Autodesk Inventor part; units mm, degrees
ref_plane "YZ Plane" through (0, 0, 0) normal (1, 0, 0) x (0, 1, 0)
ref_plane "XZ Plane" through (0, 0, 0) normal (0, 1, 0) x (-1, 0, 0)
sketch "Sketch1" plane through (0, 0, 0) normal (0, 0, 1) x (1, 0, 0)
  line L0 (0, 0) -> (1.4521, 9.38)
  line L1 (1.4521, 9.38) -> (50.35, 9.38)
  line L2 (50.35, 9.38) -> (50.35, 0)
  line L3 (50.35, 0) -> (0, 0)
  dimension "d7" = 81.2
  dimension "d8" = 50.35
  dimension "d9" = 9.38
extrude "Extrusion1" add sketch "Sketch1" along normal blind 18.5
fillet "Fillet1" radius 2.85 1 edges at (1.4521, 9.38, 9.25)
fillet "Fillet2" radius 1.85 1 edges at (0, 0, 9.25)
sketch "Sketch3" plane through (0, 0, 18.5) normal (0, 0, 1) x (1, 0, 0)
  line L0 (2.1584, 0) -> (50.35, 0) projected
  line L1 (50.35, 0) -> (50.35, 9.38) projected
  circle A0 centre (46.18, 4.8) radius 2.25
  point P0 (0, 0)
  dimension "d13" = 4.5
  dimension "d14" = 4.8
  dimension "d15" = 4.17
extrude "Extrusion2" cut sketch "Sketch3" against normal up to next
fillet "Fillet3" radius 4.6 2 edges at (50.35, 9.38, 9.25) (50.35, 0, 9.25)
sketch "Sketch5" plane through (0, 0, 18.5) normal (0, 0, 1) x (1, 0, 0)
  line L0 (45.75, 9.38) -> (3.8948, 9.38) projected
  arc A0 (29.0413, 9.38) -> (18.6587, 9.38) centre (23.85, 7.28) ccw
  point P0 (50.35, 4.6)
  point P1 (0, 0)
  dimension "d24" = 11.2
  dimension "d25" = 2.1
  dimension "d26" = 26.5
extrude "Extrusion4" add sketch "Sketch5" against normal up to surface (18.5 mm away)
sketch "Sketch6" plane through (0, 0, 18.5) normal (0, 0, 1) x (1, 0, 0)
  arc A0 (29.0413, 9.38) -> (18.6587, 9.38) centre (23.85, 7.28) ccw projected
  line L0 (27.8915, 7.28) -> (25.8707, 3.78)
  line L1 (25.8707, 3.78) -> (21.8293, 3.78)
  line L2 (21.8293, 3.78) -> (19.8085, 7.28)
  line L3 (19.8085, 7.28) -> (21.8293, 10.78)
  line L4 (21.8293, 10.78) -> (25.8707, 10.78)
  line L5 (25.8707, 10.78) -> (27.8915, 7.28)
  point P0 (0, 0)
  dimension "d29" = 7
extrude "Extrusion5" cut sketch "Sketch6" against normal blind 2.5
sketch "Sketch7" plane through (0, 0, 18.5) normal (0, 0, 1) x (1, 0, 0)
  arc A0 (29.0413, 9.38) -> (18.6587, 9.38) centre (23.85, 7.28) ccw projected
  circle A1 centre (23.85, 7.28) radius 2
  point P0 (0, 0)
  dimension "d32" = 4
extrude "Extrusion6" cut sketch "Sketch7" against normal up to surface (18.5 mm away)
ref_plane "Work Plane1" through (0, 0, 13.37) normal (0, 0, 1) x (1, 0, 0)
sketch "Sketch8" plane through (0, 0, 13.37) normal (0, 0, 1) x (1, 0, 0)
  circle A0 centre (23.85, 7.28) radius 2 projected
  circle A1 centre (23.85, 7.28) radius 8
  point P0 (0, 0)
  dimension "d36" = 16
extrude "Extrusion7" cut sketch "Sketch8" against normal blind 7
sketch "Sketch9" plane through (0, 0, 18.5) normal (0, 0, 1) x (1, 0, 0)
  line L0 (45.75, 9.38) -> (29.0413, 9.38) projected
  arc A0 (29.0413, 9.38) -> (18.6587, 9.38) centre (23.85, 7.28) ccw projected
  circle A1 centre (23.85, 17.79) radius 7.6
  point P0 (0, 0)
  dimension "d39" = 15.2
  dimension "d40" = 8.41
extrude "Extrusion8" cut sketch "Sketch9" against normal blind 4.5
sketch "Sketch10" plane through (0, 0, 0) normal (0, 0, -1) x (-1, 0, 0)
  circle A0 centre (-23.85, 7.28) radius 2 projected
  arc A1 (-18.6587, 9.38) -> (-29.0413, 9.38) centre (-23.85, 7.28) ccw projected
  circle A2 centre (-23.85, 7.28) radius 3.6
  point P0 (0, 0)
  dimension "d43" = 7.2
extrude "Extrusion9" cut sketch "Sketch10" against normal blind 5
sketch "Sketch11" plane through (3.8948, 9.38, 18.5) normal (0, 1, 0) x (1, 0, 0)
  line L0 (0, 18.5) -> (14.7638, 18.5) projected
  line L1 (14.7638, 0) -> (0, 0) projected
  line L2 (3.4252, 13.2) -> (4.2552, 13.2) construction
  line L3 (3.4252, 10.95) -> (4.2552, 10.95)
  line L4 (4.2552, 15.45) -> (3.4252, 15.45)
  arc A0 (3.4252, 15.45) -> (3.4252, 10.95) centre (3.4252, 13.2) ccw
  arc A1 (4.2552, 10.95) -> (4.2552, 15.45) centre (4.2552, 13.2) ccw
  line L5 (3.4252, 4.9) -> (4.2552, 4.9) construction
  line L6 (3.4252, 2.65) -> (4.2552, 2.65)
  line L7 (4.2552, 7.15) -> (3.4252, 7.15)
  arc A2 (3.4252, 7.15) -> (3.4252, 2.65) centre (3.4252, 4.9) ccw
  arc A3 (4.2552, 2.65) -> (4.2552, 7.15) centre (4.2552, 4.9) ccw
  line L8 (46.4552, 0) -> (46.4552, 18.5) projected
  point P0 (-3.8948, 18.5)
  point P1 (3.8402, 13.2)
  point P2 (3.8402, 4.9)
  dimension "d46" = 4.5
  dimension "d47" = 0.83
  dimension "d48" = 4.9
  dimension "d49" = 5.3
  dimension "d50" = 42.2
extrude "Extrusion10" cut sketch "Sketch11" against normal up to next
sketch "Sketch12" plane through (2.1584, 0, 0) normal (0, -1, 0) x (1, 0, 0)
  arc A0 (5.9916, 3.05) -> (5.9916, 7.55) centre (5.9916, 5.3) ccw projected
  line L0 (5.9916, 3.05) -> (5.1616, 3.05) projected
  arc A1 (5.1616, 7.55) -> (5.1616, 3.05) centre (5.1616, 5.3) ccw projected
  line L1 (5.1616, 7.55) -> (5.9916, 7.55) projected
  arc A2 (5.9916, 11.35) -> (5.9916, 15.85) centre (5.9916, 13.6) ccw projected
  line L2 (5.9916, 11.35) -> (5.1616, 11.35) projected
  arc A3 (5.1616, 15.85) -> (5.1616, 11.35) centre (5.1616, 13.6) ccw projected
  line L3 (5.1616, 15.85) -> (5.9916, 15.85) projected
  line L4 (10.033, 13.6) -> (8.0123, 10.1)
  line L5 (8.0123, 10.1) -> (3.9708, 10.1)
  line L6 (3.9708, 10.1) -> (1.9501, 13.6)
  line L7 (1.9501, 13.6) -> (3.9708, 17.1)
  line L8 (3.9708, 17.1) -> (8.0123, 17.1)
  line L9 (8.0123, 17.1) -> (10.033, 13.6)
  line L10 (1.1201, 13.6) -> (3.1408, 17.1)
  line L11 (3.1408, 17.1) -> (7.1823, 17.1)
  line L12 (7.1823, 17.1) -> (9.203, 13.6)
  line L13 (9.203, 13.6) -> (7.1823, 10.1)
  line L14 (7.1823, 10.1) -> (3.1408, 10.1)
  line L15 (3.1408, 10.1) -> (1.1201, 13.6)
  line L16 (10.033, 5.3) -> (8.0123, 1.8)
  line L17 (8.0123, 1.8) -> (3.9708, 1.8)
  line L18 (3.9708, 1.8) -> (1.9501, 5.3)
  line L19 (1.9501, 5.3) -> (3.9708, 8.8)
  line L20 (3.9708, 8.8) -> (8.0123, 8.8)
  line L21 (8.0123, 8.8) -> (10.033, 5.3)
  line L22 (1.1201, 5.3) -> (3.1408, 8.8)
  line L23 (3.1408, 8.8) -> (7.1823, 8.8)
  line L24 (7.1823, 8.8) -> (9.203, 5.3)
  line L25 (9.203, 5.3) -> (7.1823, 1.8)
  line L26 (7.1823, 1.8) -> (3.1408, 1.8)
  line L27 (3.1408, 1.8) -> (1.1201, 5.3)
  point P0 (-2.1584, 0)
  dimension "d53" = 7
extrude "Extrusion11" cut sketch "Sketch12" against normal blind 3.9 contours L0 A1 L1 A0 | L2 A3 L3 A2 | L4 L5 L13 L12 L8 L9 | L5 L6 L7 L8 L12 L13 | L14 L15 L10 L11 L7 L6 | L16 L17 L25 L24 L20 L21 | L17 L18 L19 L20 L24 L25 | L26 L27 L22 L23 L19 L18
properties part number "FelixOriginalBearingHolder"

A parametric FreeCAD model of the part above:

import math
import FreeCAD as App
import Part
import Sketcher
from FreeCAD import Vector
Q = App.Units.Quantity


def edges_at(feature, points):
    """Names of the edges that pass closest to the given points."""
    edges = feature.Shape.Edges
    near = lambda p: min(range(len(edges)), key=lambda i: edges[i].distToShape(Part.Vertex(*p))[0])
    return sorted({f"Edge{near(p) + 1}" for p in points})


def add_polygon(sketch, points):
    """Adds a closed chain of lines whose ends are joined by coincident constraints."""
    first, n = sketch.GeometryCount, len(points)
    for a, b in zip(points, points[1:] + points[:1]):
        sketch.addGeometry(Part.LineSegment(App.Vector(*a, 0), App.Vector(*b, 0)), False)
    for i in range(n):
        sketch.addConstraint(Sketcher.Constraint("Coincident", first + i, 2, first + (i + 1) % n, 1))

doc = App.newDocument("Part")
body = doc.addObject("PartDesign::Body", "Body")

# Sketch on XY plane
sketch1 = body.newObject("Sketcher::SketchObject", "Sketch")
sketch1.AttachmentSupport = (doc.getObject("XY_Plane"), [""])
sketch1.MapMode = "FlatFace"
add_polygon(sketch1, [(1.4521, 9.38), (0, 0), (50.35, 0), (50.35, 9.38)])  # lines 0-3
sketch1.addConstraint([
    Sketcher.Constraint("Horizontal", 1),
    Sketcher.Constraint("Vertical", 2),
    Sketcher.Constraint("Horizontal", 3),
    Sketcher.Constraint("Coincident", 0, 2, -1, 1),
    Sketcher.Constraint("DistanceX", 1, 1, 1, 2, 50.35),
    Sketcher.Constraint("DistanceY", 2, 1, 2, 2, 9.38),
    Sketcher.Constraint("Angle", 0, Q("-98.8 deg")),
])
pad1 = body.newObject("PartDesign::Pad", "Pad")
pad1.Profile = sketch1
pad1.Length = 18.5
doc.recompute()

fillet = body.newObject("PartDesign::Fillet", "Fillet")
fillet.Base = (pad1, edges_at(pad1, [(1.452, 9.38, 9.25)]))
fillet.Radius = 2.85
doc.recompute()

fillet2 = body.newObject("PartDesign::Fillet", "Fillet001")
fillet2.Base = (fillet, edges_at(fillet, [(0, 0, 9.25)]))
fillet2.Radius = 1.85

# Sketch on XY plane
sketch2 = body.newObject("Sketcher::SketchObject", "Sketch001")
sketch2.AttachmentSupport = (doc.getObject("XY_Plane"), [""])
sketch2.MapMode = "FlatFace"
sketch2.AttachmentOffset = App.Placement(Vector(0, 0, 18.5), App.Rotation())
sketch2.addGeometry(Part.Circle(Vector(46.18, 4.8, 0), Vector(0, 0, 1), 2.25), False)
sketch2.addConstraint([
    Sketcher.Constraint("Diameter", 0, 4.5),
    Sketcher.Constraint("DistanceY", -1, 1, 0, 3, 4.8),
    Sketcher.Constraint("DistanceX", -1, 1, 0, 3, 46.18),
])
pocket1 = body.newObject("PartDesign::Pocket", "Pocket")
pocket1.Profile = sketch2
pocket1.Type = "UpToFirst"
doc.recompute()

fillet3 = body.newObject("PartDesign::Fillet", "Fillet002")
fillet3.Base = (pocket1, edges_at(pocket1, [(50.35, 9.38, 9.25), (50.35, 0, 9.25)]))
fillet3.Radius = 4.6

# Sketch on XY plane
sketch3 = body.newObject("Sketcher::SketchObject", "Sketch002")
sketch3.AttachmentSupport = (doc.getObject("XY_Plane"), [""])
sketch3.MapMode = "FlatFace"
sketch3.AttachmentOffset = App.Placement(Vector(0, 0, 18.5), App.Rotation())
sketch3.addGeometry([
    Part.LineSegment(Vector(18.6587, 9.38, 0), Vector(29.0413, 9.38, 0)),
    Part.ArcOfCircle(Part.Circle(Vector(23.85, 7.28, 0), Vector(0, 0, 1), 5.599964), math.radians(22.024462), math.radians(157.975538)),
], False)
sketch3.addConstraint([
    Sketcher.Constraint("Coincident", 0, 1, 1, 2),
    Sketcher.Constraint("Coincident", 1, 1, 0, 2),
    Sketcher.Constraint("Horizontal", 0),
    Sketcher.Constraint("Radius", 1, 5.6),
    Sketcher.Constraint("DistanceY", 1, 3, 0, 1, 2.1),
    Sketcher.Constraint("DistanceX", -1, 1, 1, 3, 23.85),
    Sketcher.Constraint("DistanceY", -1, 1, 1, 3, 7.28),
])
pad2 = body.newObject("PartDesign::Pad", "Pad001")
pad2.Profile = sketch3
pad2.Length = 18.5
pad2.Reversed = True

# Sketch on XY plane
sketch4 = body.newObject("Sketcher::SketchObject", "Sketch003")
sketch4.AttachmentSupport = (doc.getObject("XY_Plane"), [""])
sketch4.MapMode = "FlatFace"
sketch4.AttachmentOffset = App.Placement(Vector(0, 0, 18.5), App.Rotation())
add_polygon(sketch4, [(25.8707, 3.78), (27.8915, 7.28), (25.8707, 10.78), (21.8293, 10.78), (19.8085, 7.28), (21.8293, 3.78)])  # lines 0-5
sketch4.addConstraint([
    Sketcher.Constraint("Horizontal", 2),
    Sketcher.Constraint("Horizontal", 5),
    Sketcher.Constraint("Parallel", 0, 3),
    Sketcher.Constraint("Parallel", 1, 4),
    Sketcher.Constraint("Horizontal", 0, 2, 3, 2),
    Sketcher.Constraint("Vertical", 2, 2, 4, 2),
    Sketcher.Constraint("Vertical", 1, 2, 5, 2),
    Sketcher.Constraint("DistanceY", 4, 2, 2, 2, 7.0),
    Sketcher.Constraint("Angle", 0, Q("59.999 deg")),
    Sketcher.Constraint("DistanceY", -1, 1, 0, 2, 7.28),
    Sketcher.Constraint("DistanceX", 2, 2, 2, 1, 4.0414),
    Sketcher.Constraint("DistanceX", -1, 1, 0, 2, 27.8915),
])
pocket2 = body.newObject("PartDesign::Pocket", "Pocket001")
pocket2.Profile = sketch4
pocket2.Length = 2.5

# Sketch on XY plane
sketch5 = body.newObject("Sketcher::SketchObject", "Sketch004")
sketch5.AttachmentSupport = (doc.getObject("XY_Plane"), [""])
sketch5.MapMode = "FlatFace"
sketch5.AttachmentOffset = App.Placement(Vector(0, 0, 18.5), App.Rotation())
sketch5.addGeometry(Part.Circle(Vector(23.85, 7.28, 0), Vector(0, 0, 1), 2), False)
sketch5.addConstraint([
    Sketcher.Constraint("Diameter", 0, 4.0),
    Sketcher.Constraint("DistanceX", -1, 1, 0, 3, 23.85),
    Sketcher.Constraint("DistanceY", -1, 1, 0, 3, 7.28),
])
pocket3 = body.newObject("PartDesign::Pocket", "Pocket002")
pocket3.Profile = sketch5
pocket3.Length = 18.5

# Sketch on XY plane
sketch6 = body.newObject("Sketcher::SketchObject", "Sketch005")
sketch6.AttachmentSupport = (doc.getObject("XY_Plane"), [""])
sketch6.MapMode = "FlatFace"
sketch6.AttachmentOffset = App.Placement(Vector(0, 0, 13.37), App.Rotation())
sketch6.addGeometry([
    Part.Circle(Vector(23.85, 7.28, 0), Vector(0, 0, 1), 8),
    Part.Circle(Vector(23.85, 7.28, 0), Vector(0, 0, 1), 2),
], False)
sketch6.addConstraint([
    Sketcher.Constraint("Coincident", 1, 3, 0, 3),
    Sketcher.Constraint("Diameter", 0, 16.0),
    Sketcher.Constraint("Diameter", 1, 4.0),
    Sketcher.Constraint("DistanceX", -1, 1, 0, 3, 23.85),
    Sketcher.Constraint("DistanceY", -1, 1, 0, 3, 7.28),
])
pocket4 = body.newObject("PartDesign::Pocket", "Pocket003")
pocket4.Profile = sketch6
pocket4.Length = 7

# Sketch on XY plane
sketch7 = body.newObject("Sketcher::SketchObject", "Sketch006")
sketch7.AttachmentSupport = (doc.getObject("XY_Plane"), [""])
sketch7.MapMode = "FlatFace"
sketch7.AttachmentOffset = App.Placement(Vector(0, 0, 18.5), App.Rotation())
sketch7.addGeometry(Part.Circle(Vector(23.85, 17.79, 0), Vector(0, 0, 1), 7.6), False)
sketch7.addConstraint([
    Sketcher.Constraint("Diameter", 0, 15.2),
    Sketcher.Constraint("DistanceX", -1, 1, 0, 3, 23.85),
    Sketcher.Constraint("DistanceY", -1, 1, 0, 3, 17.79),
])
pocket5 = body.newObject("PartDesign::Pocket", "Pocket004")
pocket5.Profile = sketch7
pocket5.Length = 4.5

# Sketch on XY plane
sketch8 = body.newObject("Sketcher::SketchObject", "Sketch007")
sketch8.AttachmentSupport = (doc.getObject("XY_Plane"), [""])
sketch8.MapMode = "FlatFace"
sketch8.addGeometry([
    Part.Circle(Vector(23.85, 7.28, 0), Vector(0, 0, 1), 3.6),
    Part.Circle(Vector(23.85, 7.28, 0), Vector(0, 0, 1), 2),
], False)
sketch8.addConstraint([
    Sketcher.Constraint("Coincident", 1, 3, 0, 3),
    Sketcher.Constraint("Diameter", 0, 7.2),
    Sketcher.Constraint("Diameter", 1, 4.0),
    Sketcher.Constraint("DistanceX", -1, 1, 0, 3, 23.85),
    Sketcher.Constraint("DistanceY", -1, 1, 0, 3, 7.28),
])
pocket6 = body.newObject("PartDesign::Pocket", "Pocket005")
pocket6.Profile = sketch8
pocket6.Length = 5
pocket6.Reversed = True

# Sketch on XZ plane
sketch9 = body.newObject("Sketcher::SketchObject", "Sketch008")
sketch9.AttachmentSupport = (doc.getObject("XZ_Plane"), [""])
sketch9.MapMode = "FlatFace"
sketch9.AttachmentOffset = App.Placement(Vector(0, 0, -9.38), App.Rotation())
sketch9.addGeometry([
    Part.ArcOfCircle(Part.Circle(Vector(7.32, 5.3, 0), Vector(0, 0, 1), 2.25), math.radians(90), math.radians(270)),  # 0
    Part.LineSegment(Vector(7.32, 7.55, 0), Vector(8.15, 7.55, 0)),  # 1
    Part.ArcOfCircle(Part.Circle(Vector(8.15, 5.3, 0), Vector(0, 0, 1), 2.25), math.radians(-90), math.radians(90)),  # 2
    Part.LineSegment(Vector(8.15, 3.05, 0), Vector(7.32, 3.05, 0)),  # 3
    Part.ArcOfCircle(Part.Circle(Vector(7.32, 13.6, 0), Vector(0, 0, 1), 2.25), math.radians(90), math.radians(270)),  # 4
    Part.LineSegment(Vector(7.32, 15.85, 0), Vector(8.15, 15.85, 0)),  # 5
    Part.ArcOfCircle(Part.Circle(Vector(8.15, 13.6, 0), Vector(0, 0, 1), 2.25), math.radians(-90), math.radians(90)),  # 6
    Part.LineSegment(Vector(8.15, 11.35, 0), Vector(7.32, 11.35, 0)),  # 7
], False)
sketch9.addConstraint([
    Sketcher.Constraint("Tangent", 0, 1, 1, 1),
    Sketcher.Constraint("Tangent", 1, 2, 2, 2),
    Sketcher.Constraint("Tangent", 2, 1, 3, 1),
    Sketcher.Constraint("Tangent", 3, 2, 0, 2),
    Sketcher.Constraint("Tangent", 4, 1, 5, 1),
    Sketcher.Constraint("Tangent", 5, 2, 6, 2),
    Sketcher.Constraint("Tangent", 6, 1, 7, 1),
    Sketcher.Constraint("Tangent", 7, 2, 4, 2),
    Sketcher.Constraint("Horizontal", 1),
    Sketcher.Constraint("Horizontal", 3),
    Sketcher.Constraint("Horizontal", 5),
    Sketcher.Constraint("Horizontal", 7),
    Sketcher.Constraint("Equal", 2, 4),
    Sketcher.Constraint("Vertical", 0, 3, 4, 3),
    Sketcher.Constraint("Vertical", 2, 3, 6, 3),
    Sketcher.Constraint("Radius", 0, 2.25),
    Sketcher.Constraint("DistanceX", 1, 1, 1, 2, 0.83),
    Sketcher.Constraint("DistanceY", -1, 1, 0, 3, 5.3),
    Sketcher.Constraint("DistanceY", -1, 1, 4, 3, 13.6),
    Sketcher.Constraint("DistanceX", -1, 1, 0, 3, 7.32),
])
pocket7 = body.newObject("PartDesign::Pocket", "Pocket006")
pocket7.Profile = sketch9
pocket7.Type = "UpToFirst"
pocket7.Reversed = True

# Sketch on XZ plane
sketch10 = body.newObject("Sketcher::SketchObject", "Sketch009")
sketch10.AttachmentSupport = (doc.getObject("XZ_Plane"), [""])
sketch10.MapMode = "FlatFace"
add_polygon(sketch10, [(10.1707, 1.8), (12.1914, 5.3), (10.1707, 8.8), (5.2992, 8.8), (3.2785, 5.3), (5.2992, 1.8)])  # lines 0-5
add_polygon(sketch10, [(10.1707, 10.1), (12.1914, 13.6), (10.1707, 17.1), (5.2992, 17.1), (3.2785, 13.6), (5.2992, 10.1)])  # lines 6-11
sketch10.addConstraint([
    Sketcher.Constraint("Horizontal", 2),
    Sketcher.Constraint("Horizontal", 5),
    Sketcher.Constraint("Horizontal", 8),
    Sketcher.Constraint("Horizontal", 11),
    Sketcher.Constraint("Parallel", 0, 3),
    Sketcher.Constraint("Parallel", 1, 4),
    Sketcher.Constraint("Parallel", 3, 6),
    Sketcher.Constraint("Parallel", 4, 7),
    Sketcher.Constraint("Parallel", 6, 9),
    Sketcher.Constraint("Parallel", 7, 10),
    Sketcher.Constraint("Horizontal", 0, 2, 3, 2),
    Sketcher.Constraint("Horizontal", 6, 2, 9, 2),
    Sketcher.Constraint("Vertical", 2, 2, 4, 2),
    Sketcher.Constraint("Vertical", 1, 2, 5, 2),
    Sketcher.Constraint("Vertical", 0, 2, 6, 2),
    Sketcher.Constraint("Vertical", 5, 2, 7, 2),
    Sketcher.Constraint("Vertical", 4, 2, 8, 2),
    Sketcher.Constraint("Vertical", 8, 2, 10, 2),
    Sketcher.Constraint("DistanceY", 4, 2, 2, 2, 7.0),
    Sketcher.Constraint("Angle", 0, Q("60.0003 deg")),
    Sketcher.Constraint("DistanceY", -1, 1, 0, 2, 5.3),
    Sketcher.Constraint("DistanceY", -1, 1, 6, 2, 13.6),
    Sketcher.Constraint("DistanceX", 2, 2, 2, 1, 4.8715),
    Sketcher.Constraint("DistanceX", -1, 1, 0, 2, 12.1914),
])
pocket8 = body.newObject("PartDesign::Pocket", "Pocket007")
pocket8.Profile = sketch10
pocket8.Length = 3.9

doc.recompute()
